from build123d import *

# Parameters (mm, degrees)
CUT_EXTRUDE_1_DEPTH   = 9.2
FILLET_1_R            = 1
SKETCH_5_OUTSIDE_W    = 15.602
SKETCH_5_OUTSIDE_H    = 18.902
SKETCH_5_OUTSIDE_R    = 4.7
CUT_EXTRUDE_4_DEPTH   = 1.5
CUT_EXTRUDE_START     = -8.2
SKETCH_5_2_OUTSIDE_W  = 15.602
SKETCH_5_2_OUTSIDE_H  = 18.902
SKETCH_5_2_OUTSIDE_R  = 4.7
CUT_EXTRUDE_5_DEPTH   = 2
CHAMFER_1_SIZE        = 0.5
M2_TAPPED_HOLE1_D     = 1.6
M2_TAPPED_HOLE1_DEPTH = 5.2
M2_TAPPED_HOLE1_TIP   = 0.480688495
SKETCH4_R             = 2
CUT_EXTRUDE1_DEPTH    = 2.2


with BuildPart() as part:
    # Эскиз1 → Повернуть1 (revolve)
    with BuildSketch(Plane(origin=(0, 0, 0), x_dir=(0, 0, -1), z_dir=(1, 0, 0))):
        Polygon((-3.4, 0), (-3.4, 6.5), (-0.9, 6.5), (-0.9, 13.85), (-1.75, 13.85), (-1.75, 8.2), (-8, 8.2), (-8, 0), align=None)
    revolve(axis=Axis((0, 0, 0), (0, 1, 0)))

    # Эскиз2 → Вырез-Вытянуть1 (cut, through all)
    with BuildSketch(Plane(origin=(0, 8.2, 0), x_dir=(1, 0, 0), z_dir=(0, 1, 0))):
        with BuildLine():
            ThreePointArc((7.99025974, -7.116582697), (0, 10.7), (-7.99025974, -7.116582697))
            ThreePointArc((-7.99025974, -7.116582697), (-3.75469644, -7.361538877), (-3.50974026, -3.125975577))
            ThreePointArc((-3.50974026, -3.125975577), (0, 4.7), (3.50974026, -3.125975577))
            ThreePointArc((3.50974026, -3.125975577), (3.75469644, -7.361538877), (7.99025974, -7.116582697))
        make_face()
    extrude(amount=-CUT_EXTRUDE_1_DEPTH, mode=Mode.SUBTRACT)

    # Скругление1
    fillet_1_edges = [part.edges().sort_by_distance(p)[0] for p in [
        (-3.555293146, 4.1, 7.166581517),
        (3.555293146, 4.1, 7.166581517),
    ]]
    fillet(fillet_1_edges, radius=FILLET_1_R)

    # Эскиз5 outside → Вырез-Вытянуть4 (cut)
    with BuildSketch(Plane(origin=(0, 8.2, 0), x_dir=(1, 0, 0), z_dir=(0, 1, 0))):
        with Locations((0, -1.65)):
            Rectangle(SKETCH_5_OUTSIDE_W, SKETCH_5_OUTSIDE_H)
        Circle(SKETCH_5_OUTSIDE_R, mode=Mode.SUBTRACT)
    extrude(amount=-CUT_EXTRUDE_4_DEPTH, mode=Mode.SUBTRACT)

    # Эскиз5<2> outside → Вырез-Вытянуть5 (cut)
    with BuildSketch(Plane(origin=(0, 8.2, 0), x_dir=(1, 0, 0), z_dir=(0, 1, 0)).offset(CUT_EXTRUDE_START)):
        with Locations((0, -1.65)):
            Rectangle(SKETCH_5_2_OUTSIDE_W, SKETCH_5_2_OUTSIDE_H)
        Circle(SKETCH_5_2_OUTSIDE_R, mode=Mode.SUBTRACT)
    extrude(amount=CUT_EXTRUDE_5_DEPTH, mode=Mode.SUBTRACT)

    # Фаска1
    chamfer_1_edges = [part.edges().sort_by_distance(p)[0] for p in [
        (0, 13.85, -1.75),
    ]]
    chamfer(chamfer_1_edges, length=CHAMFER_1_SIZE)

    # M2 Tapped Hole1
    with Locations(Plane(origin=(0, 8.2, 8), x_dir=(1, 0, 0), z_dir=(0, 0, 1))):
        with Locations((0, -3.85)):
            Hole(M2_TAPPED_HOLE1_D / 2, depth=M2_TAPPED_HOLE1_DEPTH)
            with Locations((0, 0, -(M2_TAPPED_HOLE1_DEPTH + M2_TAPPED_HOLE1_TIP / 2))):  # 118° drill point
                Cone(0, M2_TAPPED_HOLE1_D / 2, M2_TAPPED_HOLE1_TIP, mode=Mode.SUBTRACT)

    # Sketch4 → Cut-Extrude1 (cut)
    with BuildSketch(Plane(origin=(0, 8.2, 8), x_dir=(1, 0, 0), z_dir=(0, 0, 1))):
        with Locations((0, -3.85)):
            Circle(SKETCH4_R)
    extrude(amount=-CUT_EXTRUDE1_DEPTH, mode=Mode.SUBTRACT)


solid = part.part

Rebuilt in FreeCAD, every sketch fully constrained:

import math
import FreeCAD as App
import Part
import Sketcher

V = App.Vector


def edges_at(feature, points):
    """Names of the edges that pass closest to the given points."""
    edges = feature.Shape.Edges
    near = lambda p: min(range(len(edges)), key=lambda i: edges[i].distToShape(Part.Vertex(*p))[0])
    return sorted({f"Edge{near(p) + 1}" for p in points})


def add_polygon(sketch, points):
    """Adds a closed chain of lines whose ends are joined by coincident constraints."""
    first, n = sketch.GeometryCount, len(points)
    for a, b in zip(points, points[1:] + points[:1]):
        sketch.addGeometry(Part.LineSegment(App.Vector(*a, 0), App.Vector(*b, 0)), False)
    for i in range(n):
        sketch.addConstraint(Sketcher.Constraint("Coincident", first + i, 2, first + (i + 1) % n, 1))

doc = App.newDocument("Part")
body = doc.addObject("PartDesign::Body", "Body")

# Sketch on YZ plane
sketch1 = body.newObject("Sketcher::SketchObject", "Sketch")
sketch1.AttachmentSupport = (doc.getObject("YZ_Plane"), [""])
sketch1.MapMode = "FlatFace"
add_polygon(sketch1, [(0, 3.4), (6.5, 3.4), (6.5, 0.9), (13.85, 0.9), (13.85, 1.75), (8.2, 1.75), (8.2, 8), (0, 8)])  # lines 0-7
sketch1.addConstraint([
    Sketcher.Constraint("Horizontal", 0),
    Sketcher.Constraint("Vertical", 1),
    Sketcher.Constraint("Horizontal", 2),
    Sketcher.Constraint("Vertical", 3),
    Sketcher.Constraint("Horizontal", 4),
    Sketcher.Constraint("Vertical", 5),
    Sketcher.Constraint("Horizontal", 6),
    Sketcher.Constraint("Vertical", 7),
    Sketcher.Constraint("PointOnObject", 6, 2, -2),
    Sketcher.Constraint("DistanceX", 0, 1, 0, 2, 6.5),
    Sketcher.Constraint("DistanceX", 6, 2, 6, 1, 8.2),
    Sketcher.Constraint("DistanceY", 1, 2, 1, 1, 2.5),
    Sketcher.Constraint("DistanceY", 7, 2, 7, 1, 4.6),
    Sketcher.Constraint("DistanceY", -1, 1, 5, 2, 8.0),
    Sketcher.Constraint("DistanceX", 2, 1, 2, 2, 7.35),
    Sketcher.Constraint("DistanceY", 3, 1, 3, 2, 0.85),
])
revolution = body.newObject("PartDesign::Revolution", "Revolution")
revolution.Profile = sketch1
revolution.ReferenceAxis = (sketch1, ["H_Axis"])
revolution.Angle = 360

# Sketch on XZ plane
sketch2 = body.newObject("Sketcher::SketchObject", "Sketch001")
sketch2.AttachmentSupport = (doc.getObject("XZ_Plane"), [""])
sketch2.MapMode = "FlatFace"
sketch2.AttachmentOffset = App.Placement(V(0, 0, -8.2), App.Rotation())
sketch2.addGeometry([
    Part.ArcOfCircle(Part.Circle(V(0, 0, 0), V(0, 0, 1), 10.7), math.radians(138.309911), math.radians(401.690089)),
    Part.ArcOfCircle(Part.Circle(V(-5.75, 5.121279, 0), V(0, 0, 1), 3), math.radians(-41.690089), math.radians(138.309911)),
    Part.ArcOfCircle(Part.Circle(V(0, 0, 0), V(0, 0, 1), 4.7), math.radians(138.309911), math.radians(401.690089)),
    Part.ArcOfCircle(Part.Circle(V(5.75, 5.121279, 0), V(0, 0, 1), 3), math.radians(41.690089), math.radians(221.690089)),
], False)
sketch2.addConstraint([
    Sketcher.Constraint("Tangent", 0, 1, 1, 2),
    Sketcher.Constraint("Tangent", 1, 1, 2, 1),
    Sketcher.Constraint("Tangent", 2, 2, 3, 2),
    Sketcher.Constraint("Tangent", 3, 1, 0, 2),
    Sketcher.Constraint("Coincident", 0, 3, -1, 1),
    Sketcher.Constraint("Coincident", 2, 3, -1, 1),
    Sketcher.Constraint("Horizontal", 1, 3, 3, 3),
    Sketcher.Constraint("Radius", 1, 3.0),
    Sketcher.Constraint("Radius", 0, 10.7),
    Sketcher.Constraint("DistanceX", 1, 3, 3, 3, 11.5),
])
pocket1 = body.newObject("PartDesign::Pocket", "Pocket")
pocket1.Profile = sketch2
pocket1.Type = "ThroughAll"
pocket1.Reversed = True
doc.recompute()

fillet = body.newObject("PartDesign::Fillet", "Fillet")
fillet.Base = (pocket1, edges_at(pocket1, [(-3.555, 4.1, 7.167), (3.555, 4.1, 7.167)]))
fillet.Radius = 1

# Sketch on XZ plane
sketch3 = body.newObject("Sketcher::SketchObject", "Sketch002")
sketch3.AttachmentSupport = (doc.getObject("XZ_Plane"), [""])
sketch3.MapMode = "FlatFace"
sketch3.AttachmentOffset = App.Placement(V(0, 0, -8.2), App.Rotation())
add_polygon(sketch3, [(-7.801, -7.801), (-7.801, 11.101), (7.801, 11.101), (7.801, -7.801)])  # lines 0-3
sketch3.addGeometry(Part.Circle(V(0, 0, 0), V(0, 0, 1), 4.7), False)  # 4
sketch3.addConstraint([
    Sketcher.Constraint("Vertical", 0),
    Sketcher.Constraint("Horizontal", 1),
    Sketcher.Constraint("Vertical", 2),
    Sketcher.Constraint("Horizontal", 3),
    Sketcher.Constraint("Coincident", 4, 3, -1, 1),
    Sketcher.Constraint("Diameter", 4, 9.4),
    Sketcher.Constraint("DistanceX", 1, 1, 1, 2, 15.602),
    Sketcher.Constraint("DistanceY", 0, 1, 0, 2, 18.902),
    Sketcher.Constraint("DistanceX", 0, 2, -1, 1, 7.801),
    Sketcher.Constraint("DistanceY", -1, 1, 0, 2, 11.101),
])
pocket2 = body.newObject("PartDesign::Pocket", "Pocket001")
pocket2.Profile = sketch3
pocket2.Length = 1.5
pocket2.Reversed = True

# Sketch on XZ plane
sketch4 = body.newObject("Sketcher::SketchObject", "Sketch003")
sketch4.AttachmentSupport = (doc.getObject("XZ_Plane"), [""])
sketch4.MapMode = "FlatFace"
add_polygon(sketch4, [(-7.801, -7.801), (-7.801, 11.101), (7.801, 11.101), (7.801, -7.801)])  # lines 0-3
sketch4.addGeometry(Part.Circle(V(0, 0, 0), V(0, 0, 1), 4.7), False)  # 4
sketch4.addConstraint([
    Sketcher.Constraint("Vertical", 0),
    Sketcher.Constraint("Horizontal", 1),
    Sketcher.Constraint("Vertical", 2),
    Sketcher.Constraint("Horizontal", 3),
    Sketcher.Constraint("Coincident", 4, 3, -1, 1),
    Sketcher.Constraint("Diameter", 4, 9.4),
    Sketcher.Constraint("DistanceX", 1, 1, 1, 2, 15.602),
    Sketcher.Constraint("DistanceY", 0, 1, 0, 2, 18.902),
    Sketcher.Constraint("DistanceX", 0, 2, -1, 1, 7.801),
    Sketcher.Constraint("DistanceY", -1, 1, 0, 2, 11.101),
])
pocket3 = body.newObject("PartDesign::Pocket", "Pocket002")
pocket3.Profile = sketch4
pocket3.Length = 2
doc.recompute()

chamfer = body.newObject("PartDesign::Chamfer", "Chamfer")
chamfer.Base = (pocket3, edges_at(pocket3, [(0, 13.85, -1.75)]))
chamfer.Size = 0.5

# Sketch on XY plane
sketch5 = body.newObject("Sketcher::SketchObject", "Sketch004")
sketch5.AttachmentSupport = (doc.getObject("XY_Plane"), [""])
sketch5.MapMode = "FlatFace"
sketch5.AttachmentOffset = App.Placement(V(0, 0, 8), App.Rotation())
sketch5.addGeometry(Part.Circle(V(0, 4.35, 0), V(0, 0, 1), 0.8), False)
sketch5.addConstraint([
    Sketcher.Constraint("PointOnObject", 0, 3, -2),
    Sketcher.Constraint("Diameter", 0, 1.6),
    Sketcher.Constraint("DistanceY", -1, 1, 0, 3, 4.35),
])
doc.recompute()
hole = body.newObject("PartDesign::Hole", "Hole")
hole.Profile = sketch5
hole.ThreadType = "None"
hole.Diameter = 1.6
hole.DepthType = "Dimension"
hole.Depth = 5.2
hole.DrillPoint = "Angled"
hole.DrillPointAngle = 118

# Sketch on XY plane
sketch6 = body.newObject("Sketcher::SketchObject", "Sketch005")
sketch6.AttachmentSupport = (doc.getObject("XY_Plane"), [""])
sketch6.MapMode = "FlatFace"
sketch6.AttachmentOffset = App.Placement(V(0, 0, 8), App.Rotation())
sketch6.addGeometry(Part.Circle(V(0, 4.35, 0), V(0, 0, 1), 2), False)
sketch6.addConstraint([
    Sketcher.Constraint("PointOnObject", 0, 3, -2),
    Sketcher.Constraint("Diameter", 0, 4.0),
    Sketcher.Constraint("DistanceY", -1, 1, 0, 3, 4.35),
])
pocket4 = body.newObject("PartDesign::Pocket", "Pocket003")
pocket4.Profile = sketch6
pocket4.Length = 2.2

doc.recompute()
